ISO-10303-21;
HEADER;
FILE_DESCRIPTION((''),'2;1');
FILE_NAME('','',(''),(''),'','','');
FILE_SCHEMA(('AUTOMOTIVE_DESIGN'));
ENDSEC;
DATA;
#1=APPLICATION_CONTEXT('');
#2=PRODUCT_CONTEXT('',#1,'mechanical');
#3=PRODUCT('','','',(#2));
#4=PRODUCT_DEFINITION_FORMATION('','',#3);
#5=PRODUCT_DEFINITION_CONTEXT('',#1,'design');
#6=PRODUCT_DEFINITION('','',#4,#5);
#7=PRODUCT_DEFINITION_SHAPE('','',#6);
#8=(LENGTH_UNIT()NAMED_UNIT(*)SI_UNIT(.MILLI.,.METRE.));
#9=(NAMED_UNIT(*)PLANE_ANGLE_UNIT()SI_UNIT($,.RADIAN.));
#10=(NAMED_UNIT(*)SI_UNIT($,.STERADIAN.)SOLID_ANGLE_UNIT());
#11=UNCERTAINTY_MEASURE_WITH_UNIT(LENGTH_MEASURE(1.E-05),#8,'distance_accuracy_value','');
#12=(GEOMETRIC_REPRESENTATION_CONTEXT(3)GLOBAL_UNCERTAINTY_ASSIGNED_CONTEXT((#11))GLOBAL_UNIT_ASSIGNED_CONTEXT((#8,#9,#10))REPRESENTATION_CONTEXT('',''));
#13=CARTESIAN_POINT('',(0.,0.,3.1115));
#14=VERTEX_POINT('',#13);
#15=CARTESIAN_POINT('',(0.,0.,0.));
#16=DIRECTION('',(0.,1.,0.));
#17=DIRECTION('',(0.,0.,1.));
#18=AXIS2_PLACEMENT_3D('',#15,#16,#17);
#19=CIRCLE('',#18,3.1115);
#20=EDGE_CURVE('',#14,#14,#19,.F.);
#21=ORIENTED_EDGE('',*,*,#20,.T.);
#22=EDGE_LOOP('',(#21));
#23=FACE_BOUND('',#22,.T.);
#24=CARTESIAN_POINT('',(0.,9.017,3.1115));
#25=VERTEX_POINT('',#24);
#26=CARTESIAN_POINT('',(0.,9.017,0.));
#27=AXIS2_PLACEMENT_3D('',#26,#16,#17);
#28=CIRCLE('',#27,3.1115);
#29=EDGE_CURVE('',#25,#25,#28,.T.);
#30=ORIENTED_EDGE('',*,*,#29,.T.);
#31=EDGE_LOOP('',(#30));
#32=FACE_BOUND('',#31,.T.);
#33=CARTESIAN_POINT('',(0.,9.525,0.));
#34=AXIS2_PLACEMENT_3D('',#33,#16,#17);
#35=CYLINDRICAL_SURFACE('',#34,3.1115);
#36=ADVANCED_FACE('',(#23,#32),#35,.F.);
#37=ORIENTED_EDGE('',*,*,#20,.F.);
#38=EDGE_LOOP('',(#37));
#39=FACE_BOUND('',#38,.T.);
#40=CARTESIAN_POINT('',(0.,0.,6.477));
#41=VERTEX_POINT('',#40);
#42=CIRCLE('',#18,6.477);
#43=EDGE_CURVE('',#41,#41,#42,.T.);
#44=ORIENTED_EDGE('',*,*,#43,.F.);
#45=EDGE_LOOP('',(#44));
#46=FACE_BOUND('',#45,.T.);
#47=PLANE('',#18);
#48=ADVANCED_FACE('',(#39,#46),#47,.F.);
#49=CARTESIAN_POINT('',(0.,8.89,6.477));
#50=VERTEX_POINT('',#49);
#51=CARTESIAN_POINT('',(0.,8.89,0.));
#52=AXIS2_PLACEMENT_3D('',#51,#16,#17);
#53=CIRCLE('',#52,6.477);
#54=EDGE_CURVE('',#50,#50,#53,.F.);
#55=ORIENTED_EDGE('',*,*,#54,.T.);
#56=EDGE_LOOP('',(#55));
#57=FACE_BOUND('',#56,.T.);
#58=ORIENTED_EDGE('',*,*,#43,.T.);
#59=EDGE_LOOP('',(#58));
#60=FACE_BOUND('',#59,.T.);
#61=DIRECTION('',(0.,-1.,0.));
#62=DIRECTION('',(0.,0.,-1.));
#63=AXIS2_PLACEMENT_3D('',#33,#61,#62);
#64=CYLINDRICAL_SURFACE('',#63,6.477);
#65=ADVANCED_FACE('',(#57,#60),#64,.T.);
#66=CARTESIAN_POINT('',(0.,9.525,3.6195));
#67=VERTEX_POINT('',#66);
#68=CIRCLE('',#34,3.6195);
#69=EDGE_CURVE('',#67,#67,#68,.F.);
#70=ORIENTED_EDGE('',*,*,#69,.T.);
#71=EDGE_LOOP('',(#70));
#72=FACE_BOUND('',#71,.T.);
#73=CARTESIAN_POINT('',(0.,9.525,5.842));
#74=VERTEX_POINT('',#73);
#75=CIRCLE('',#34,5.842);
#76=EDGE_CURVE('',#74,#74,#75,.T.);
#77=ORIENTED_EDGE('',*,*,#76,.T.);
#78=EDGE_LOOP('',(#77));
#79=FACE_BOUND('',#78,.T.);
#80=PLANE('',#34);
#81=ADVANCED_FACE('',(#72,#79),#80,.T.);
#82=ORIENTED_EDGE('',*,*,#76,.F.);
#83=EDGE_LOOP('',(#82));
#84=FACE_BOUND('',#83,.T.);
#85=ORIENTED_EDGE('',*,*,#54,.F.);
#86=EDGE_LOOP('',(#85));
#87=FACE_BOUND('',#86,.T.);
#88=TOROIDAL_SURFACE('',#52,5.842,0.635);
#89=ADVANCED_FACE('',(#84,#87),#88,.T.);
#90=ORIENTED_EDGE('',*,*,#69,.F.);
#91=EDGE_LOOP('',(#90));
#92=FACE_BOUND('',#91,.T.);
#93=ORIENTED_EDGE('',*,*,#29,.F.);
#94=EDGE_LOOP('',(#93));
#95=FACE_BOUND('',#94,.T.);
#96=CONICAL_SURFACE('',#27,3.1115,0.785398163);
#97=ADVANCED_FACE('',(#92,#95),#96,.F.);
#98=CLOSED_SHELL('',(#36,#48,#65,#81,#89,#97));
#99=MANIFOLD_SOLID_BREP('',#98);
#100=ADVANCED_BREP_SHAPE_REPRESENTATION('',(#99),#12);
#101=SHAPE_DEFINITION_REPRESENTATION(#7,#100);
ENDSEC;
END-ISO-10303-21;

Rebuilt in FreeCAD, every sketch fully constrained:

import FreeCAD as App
import Part
import Sketcher

V = App.Vector
Q = App.Units.Quantity


def edges_at(feature, points):
    """Names of the edges that pass closest to the given points."""
    edges = feature.Shape.Edges
    near = lambda p: min(range(len(edges)), key=lambda i: edges[i].distToShape(Part.Vertex(*p))[0])
    return sorted({f"Edge{near(p) + 1}" for p in points})

doc = App.newDocument("Part")
params = doc.addObject("Spreadsheet::Sheet", "Params")
for row, (alias, value) in enumerate([
    ("sketch1_diameter", "0.51 in"),
    ("pad1_length", "0.375 in"),
    ("fillet_radius", "0.025 in"),
    ("sketch2_diameter", "0.245 in"),
    ("hole_diameter", "0.245 in"),
    ("hole_depth", "0.375 in"),
    ("chamfer_size", "0.02 in"),
], start=1):
    params.set(f"A{row}", alias)
    params.set(f"B{row}", "=" + value)
    params.setAlias(f"B{row}", alias)

body = doc.addObject("PartDesign::Body", "Body")

sketch1 = body.newObject("Sketcher::SketchObject", "Sketch")
sketch1.AttachmentSupport = (doc.getObject("XZ_Plane"), [""])
sketch1.MapMode = "FlatFace"
sketch1.addGeometry(Part.Circle(V(0, 0, 0), V(0, 0, 1), 6.477), False)
sketch1.addConstraint([
    Sketcher.Constraint("Coincident", 0, 3, -1, 1),
    Sketcher.Constraint("Diameter", 0, Q("0.51 in")),
])
sketch1.setExpression("Constraints[1]", "Params.sketch1_diameter")
pad1 = body.newObject("PartDesign::Pad", "Pad")
pad1.Profile = sketch1
pad1.setExpression("Length", "Params.pad1_length")
pad1.Reversed = True
doc.recompute()

fillet = body.newObject("PartDesign::Fillet", "Fillet")
fillet.Base = (pad1, edges_at(pad1, [(-6.477, 9.525, 0)]))
fillet.setExpression("Radius", "Params.fillet_radius")

sketch2 = body.newObject("Sketcher::SketchObject", "Sketch001")
sketch2.AttachmentSupport = (doc.getObject("XZ_Plane"), [""])
sketch2.MapMode = "FlatFace"
sketch2.AttachmentOffset = App.Placement(V(0, 0, -0.375 * 25.4), App.Rotation())
sketch2.addGeometry(Part.Circle(V(0, 0, 0), V(0, 0, 1), 3.1115), False)
sketch2.addConstraint([
    Sketcher.Constraint("Coincident", 0, 3, -1, 1),
    Sketcher.Constraint("Diameter", 0, Q("0.245 in")),
])
sketch2.setExpression("Constraints[1]", "Params.sketch2_diameter")
doc.recompute()
hole = body.newObject("PartDesign::Hole", "Hole")
hole.Profile = sketch2
hole.ThreadType = "None"
hole.setExpression("Diameter", "Params.hole_diameter")
hole.DepthType = "Dimension"
hole.setExpression("Depth", "Params.hole_depth")
hole.DrillPoint = "Angled"
hole.DrillPointAngle = 118
hole.Reversed = True
doc.recompute()

chamfer = body.newObject("PartDesign::Chamfer", "Chamfer")
chamfer.Base = (hole, edges_at(hole, [(3.111, 9.525, 0)]))
chamfer.setExpression("Size", "Params.chamfer_size")

doc.recompute()
